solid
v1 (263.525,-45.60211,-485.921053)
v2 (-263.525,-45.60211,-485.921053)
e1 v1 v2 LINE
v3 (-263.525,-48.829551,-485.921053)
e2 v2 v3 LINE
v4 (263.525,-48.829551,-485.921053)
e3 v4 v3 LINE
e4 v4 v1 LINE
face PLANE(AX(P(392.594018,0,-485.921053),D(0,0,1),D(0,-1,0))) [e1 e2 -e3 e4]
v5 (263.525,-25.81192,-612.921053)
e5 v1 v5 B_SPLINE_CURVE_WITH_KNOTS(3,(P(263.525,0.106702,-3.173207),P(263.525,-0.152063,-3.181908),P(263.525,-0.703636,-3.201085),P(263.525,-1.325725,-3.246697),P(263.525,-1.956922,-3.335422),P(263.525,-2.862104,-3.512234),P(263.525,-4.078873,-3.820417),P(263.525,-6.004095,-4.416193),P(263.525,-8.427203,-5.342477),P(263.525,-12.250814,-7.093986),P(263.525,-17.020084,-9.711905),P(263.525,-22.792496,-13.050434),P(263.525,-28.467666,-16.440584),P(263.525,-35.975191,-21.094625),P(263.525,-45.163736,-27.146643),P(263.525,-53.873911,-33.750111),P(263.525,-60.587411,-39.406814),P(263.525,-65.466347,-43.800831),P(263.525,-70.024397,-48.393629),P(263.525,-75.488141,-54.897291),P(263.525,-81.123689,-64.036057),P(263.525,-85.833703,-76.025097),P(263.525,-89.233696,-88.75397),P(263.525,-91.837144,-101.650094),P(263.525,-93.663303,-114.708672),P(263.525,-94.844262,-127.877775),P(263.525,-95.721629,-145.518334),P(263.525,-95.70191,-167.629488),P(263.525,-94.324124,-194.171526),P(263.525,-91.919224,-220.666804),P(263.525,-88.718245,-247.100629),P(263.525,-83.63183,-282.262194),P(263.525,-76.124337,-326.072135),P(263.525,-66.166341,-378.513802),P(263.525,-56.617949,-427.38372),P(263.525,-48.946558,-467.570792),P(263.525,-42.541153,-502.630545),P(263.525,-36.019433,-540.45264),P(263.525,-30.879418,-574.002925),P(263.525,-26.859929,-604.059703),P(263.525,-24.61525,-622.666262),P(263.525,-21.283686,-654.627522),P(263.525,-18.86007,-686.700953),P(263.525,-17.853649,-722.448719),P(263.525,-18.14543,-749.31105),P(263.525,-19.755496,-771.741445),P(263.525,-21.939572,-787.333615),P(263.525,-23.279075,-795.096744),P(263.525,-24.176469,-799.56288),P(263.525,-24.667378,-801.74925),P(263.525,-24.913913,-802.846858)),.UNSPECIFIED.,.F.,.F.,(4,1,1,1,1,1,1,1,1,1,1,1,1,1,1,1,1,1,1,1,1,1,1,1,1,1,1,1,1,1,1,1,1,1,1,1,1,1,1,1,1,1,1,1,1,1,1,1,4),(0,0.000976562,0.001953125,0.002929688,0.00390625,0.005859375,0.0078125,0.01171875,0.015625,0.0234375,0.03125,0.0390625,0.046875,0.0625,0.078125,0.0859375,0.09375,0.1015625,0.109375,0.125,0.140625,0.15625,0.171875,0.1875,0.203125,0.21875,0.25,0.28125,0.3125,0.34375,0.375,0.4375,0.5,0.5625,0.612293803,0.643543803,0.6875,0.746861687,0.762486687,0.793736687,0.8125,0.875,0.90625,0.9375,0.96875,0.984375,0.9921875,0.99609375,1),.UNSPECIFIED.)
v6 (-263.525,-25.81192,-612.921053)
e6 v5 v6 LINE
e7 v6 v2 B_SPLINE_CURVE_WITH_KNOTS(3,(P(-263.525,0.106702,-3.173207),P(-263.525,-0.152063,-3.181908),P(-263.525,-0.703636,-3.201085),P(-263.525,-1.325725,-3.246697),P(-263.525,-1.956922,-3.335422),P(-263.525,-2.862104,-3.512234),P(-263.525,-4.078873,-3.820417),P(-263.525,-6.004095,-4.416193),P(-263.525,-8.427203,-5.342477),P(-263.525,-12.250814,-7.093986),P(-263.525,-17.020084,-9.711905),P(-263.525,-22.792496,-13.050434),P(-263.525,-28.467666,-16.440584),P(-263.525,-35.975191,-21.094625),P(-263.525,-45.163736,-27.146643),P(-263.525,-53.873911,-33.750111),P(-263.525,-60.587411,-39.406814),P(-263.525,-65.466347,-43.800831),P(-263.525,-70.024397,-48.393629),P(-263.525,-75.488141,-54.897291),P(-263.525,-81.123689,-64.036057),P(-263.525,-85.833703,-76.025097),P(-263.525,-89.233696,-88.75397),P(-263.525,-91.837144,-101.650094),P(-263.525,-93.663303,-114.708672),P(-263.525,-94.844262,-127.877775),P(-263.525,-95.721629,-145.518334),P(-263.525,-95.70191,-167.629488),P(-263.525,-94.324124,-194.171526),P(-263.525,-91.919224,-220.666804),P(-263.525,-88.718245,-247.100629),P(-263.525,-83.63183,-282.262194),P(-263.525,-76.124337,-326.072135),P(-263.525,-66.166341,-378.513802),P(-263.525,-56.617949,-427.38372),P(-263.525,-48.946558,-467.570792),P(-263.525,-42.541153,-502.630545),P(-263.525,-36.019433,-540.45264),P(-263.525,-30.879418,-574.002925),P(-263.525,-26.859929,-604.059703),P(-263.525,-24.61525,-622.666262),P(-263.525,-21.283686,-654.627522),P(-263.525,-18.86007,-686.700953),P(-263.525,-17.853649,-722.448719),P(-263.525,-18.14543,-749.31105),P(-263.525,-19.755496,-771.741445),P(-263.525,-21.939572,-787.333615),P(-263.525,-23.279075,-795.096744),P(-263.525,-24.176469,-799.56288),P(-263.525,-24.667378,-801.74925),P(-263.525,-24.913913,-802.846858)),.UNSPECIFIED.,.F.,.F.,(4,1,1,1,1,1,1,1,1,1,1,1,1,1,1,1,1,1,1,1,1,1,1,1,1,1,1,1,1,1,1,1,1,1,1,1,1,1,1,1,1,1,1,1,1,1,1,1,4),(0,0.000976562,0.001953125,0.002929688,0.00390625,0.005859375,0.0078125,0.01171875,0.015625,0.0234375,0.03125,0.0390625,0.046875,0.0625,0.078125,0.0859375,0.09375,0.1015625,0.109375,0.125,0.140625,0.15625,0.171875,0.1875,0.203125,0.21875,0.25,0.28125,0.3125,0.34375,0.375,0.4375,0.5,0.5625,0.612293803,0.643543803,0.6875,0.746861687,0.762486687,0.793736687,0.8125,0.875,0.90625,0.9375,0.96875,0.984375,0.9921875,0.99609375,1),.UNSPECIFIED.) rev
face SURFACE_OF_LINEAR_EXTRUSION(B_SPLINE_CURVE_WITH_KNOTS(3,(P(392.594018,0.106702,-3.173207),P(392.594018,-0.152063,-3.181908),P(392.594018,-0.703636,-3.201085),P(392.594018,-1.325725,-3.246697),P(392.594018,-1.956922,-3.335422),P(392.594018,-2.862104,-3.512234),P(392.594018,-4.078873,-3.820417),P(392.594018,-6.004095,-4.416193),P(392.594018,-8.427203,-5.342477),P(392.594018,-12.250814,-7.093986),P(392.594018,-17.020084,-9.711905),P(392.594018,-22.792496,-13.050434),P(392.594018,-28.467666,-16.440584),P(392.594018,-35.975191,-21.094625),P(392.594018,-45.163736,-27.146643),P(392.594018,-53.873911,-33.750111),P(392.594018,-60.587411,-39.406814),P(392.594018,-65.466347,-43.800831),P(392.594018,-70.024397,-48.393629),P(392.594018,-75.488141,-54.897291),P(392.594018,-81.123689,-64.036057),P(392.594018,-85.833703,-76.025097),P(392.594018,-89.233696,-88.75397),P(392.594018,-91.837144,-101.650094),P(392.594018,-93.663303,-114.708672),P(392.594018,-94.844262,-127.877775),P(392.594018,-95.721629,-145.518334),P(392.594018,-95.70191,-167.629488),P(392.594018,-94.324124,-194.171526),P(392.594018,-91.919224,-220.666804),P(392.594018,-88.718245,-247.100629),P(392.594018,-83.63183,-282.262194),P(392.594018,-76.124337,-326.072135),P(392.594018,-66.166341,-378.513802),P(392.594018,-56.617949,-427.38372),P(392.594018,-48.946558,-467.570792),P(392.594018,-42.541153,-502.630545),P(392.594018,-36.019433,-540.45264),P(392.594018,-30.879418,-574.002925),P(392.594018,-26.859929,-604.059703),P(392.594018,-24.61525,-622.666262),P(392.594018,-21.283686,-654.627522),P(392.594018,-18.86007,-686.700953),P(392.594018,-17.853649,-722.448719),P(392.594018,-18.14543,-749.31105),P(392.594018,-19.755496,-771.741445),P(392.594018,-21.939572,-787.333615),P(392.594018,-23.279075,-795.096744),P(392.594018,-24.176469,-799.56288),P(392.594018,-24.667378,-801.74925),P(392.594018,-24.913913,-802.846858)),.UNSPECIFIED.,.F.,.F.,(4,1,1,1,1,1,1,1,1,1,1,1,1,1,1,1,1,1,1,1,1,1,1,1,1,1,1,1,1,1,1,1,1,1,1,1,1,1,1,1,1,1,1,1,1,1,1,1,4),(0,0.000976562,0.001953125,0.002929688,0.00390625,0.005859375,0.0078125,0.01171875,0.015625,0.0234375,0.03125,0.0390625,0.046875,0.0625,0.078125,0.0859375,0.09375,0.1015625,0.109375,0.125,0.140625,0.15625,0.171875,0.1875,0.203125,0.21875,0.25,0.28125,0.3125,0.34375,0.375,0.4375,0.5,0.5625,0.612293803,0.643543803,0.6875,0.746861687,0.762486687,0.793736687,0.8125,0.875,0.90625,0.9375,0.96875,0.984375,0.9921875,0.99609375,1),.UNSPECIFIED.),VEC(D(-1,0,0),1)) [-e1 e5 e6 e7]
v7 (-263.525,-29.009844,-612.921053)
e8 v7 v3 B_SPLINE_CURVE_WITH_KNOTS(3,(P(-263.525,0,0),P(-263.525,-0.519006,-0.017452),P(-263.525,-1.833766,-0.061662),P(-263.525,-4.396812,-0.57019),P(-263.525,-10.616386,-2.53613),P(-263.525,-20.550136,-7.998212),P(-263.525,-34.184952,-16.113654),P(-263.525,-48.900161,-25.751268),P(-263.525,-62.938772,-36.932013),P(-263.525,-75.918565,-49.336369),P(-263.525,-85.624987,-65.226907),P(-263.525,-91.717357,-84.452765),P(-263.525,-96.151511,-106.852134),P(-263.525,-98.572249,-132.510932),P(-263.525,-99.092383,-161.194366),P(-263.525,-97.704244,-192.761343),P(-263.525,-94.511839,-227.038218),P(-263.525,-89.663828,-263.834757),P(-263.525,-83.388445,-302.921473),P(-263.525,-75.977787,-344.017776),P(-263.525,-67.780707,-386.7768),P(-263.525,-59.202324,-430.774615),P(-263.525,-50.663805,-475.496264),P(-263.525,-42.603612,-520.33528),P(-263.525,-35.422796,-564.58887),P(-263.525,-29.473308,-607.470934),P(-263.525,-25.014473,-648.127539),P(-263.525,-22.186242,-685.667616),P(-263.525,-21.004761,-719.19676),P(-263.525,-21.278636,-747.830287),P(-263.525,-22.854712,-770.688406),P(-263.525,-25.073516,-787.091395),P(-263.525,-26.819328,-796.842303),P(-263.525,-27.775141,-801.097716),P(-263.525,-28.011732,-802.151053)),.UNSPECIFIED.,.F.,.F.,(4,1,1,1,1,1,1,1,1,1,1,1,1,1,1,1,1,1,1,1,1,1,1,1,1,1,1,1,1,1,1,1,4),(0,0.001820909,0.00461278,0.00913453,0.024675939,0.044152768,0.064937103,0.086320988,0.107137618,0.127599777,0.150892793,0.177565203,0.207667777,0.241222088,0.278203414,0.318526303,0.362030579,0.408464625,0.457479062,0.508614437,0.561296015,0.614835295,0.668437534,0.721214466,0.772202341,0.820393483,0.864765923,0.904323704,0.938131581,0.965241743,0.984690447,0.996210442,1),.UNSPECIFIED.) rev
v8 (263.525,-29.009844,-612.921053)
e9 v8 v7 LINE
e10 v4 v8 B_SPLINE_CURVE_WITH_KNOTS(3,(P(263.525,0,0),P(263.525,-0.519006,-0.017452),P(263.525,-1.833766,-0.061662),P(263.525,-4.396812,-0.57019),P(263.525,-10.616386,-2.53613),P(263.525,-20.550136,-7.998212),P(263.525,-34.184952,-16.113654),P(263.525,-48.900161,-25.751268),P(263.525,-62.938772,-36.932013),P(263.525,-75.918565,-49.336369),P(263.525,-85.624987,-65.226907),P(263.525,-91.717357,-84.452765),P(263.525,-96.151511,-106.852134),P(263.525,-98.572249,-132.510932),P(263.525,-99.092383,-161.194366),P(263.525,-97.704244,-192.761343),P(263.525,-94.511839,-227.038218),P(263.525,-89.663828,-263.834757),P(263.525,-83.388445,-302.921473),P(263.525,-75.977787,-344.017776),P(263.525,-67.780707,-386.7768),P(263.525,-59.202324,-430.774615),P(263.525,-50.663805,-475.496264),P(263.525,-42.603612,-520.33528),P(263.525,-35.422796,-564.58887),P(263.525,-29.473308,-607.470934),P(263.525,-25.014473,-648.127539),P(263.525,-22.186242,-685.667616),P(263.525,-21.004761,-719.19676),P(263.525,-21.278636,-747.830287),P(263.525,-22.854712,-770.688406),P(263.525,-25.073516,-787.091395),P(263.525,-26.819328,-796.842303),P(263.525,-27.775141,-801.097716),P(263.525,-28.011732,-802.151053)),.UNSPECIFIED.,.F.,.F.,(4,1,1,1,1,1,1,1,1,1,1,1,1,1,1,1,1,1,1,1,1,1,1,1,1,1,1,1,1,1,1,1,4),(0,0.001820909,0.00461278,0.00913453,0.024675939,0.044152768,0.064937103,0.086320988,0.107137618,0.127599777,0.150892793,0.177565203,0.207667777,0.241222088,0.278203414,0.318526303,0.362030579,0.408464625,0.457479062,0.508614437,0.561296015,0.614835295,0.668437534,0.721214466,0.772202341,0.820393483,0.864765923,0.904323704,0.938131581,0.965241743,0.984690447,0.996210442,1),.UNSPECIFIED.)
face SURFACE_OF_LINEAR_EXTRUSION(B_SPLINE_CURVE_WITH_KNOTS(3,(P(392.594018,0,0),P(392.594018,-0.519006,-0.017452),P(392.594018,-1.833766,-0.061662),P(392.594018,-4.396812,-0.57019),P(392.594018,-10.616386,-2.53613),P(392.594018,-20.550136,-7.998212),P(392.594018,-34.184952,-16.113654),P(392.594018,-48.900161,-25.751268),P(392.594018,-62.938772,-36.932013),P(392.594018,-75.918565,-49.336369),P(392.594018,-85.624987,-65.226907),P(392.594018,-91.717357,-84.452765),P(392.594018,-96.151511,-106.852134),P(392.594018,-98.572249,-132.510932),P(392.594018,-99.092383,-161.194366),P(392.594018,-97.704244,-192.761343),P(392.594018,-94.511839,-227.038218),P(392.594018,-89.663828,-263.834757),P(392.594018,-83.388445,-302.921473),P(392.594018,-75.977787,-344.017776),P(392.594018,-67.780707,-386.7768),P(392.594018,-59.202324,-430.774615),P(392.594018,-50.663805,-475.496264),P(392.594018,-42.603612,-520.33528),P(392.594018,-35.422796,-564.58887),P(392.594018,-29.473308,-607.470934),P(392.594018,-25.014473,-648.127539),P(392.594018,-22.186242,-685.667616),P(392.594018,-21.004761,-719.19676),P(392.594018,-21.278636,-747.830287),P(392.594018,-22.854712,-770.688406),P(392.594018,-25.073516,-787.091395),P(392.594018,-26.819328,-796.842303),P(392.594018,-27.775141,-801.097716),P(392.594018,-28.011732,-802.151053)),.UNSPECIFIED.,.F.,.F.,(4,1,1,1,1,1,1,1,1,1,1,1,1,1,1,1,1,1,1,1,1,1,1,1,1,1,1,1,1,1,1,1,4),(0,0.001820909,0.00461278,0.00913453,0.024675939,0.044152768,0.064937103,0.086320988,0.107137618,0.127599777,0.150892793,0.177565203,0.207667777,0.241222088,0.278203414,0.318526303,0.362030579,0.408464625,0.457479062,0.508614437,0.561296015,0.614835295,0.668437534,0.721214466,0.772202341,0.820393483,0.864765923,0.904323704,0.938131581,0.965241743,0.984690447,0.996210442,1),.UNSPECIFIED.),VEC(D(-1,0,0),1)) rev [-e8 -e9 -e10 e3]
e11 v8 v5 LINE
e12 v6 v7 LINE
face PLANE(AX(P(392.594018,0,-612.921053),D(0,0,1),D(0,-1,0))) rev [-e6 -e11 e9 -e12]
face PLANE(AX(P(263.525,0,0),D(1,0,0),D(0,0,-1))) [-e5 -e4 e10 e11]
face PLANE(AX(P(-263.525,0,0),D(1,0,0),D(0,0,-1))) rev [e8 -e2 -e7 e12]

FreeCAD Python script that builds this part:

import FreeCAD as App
import Part
import Sketcher
from FreeCAD import Vector
Q = App.Units.Quantity

doc = App.newDocument("Part")
body = doc.addObject("PartDesign::Body", "Body")

sketch1 = body.newObject("Sketcher::SketchObject", "Sketch")
sketch1.AttachmentSupport = (doc.getObject("YZ_Plane"), [""])
sketch1.MapMode = "FlatFace"
sketch1.addGeometry(Part.LineSegment(Vector(-45.60211, -485.921053, 0), Vector(-48.829551, -485.921053, 0)), False)
sketch1.addGeometry(Part.BSplineCurve([Vector(-48.829551, -485.921053, 0), Vector(-46.721675, -497.466005, 0), Vector(-42.037524, -523.823946, 0), Vector(-35.422796, -564.58887, 0), Vector(-31.146246, -595.412918, 0), Vector(-29.196049, -611.376026, 0), Vector(-29.009844, -612.921053, 0)], [4, 1, 1, 1, 4], [0.62724109, 0.668437534, 0.721214466, 0.772202341, 0.777664958], False, 3, [1, 1, 1, 1, 1, 1, 1], False), False)
sketch1.addGeometry(Part.LineSegment(Vector(-29.009844, -612.921053, 0), Vector(-25.81192, -612.921053, 0)), False)
sketch1.addGeometry(Part.BSplineCurve([Vector(-45.60211, -485.921053, 0), Vector(-44.802632, -490.303698, 0), Vector(-41.7839, -507.022159, 0), Vector(-36.019433, -540.45264, 0), Vector(-30.879418, -574.002925, 0), Vector(-27.451104, -599.639035, 0), Vector(-26.344535, -608.491793, 0), Vector(-25.81192, -612.921053, 0)], [4, 1, 1, 1, 1, 4], [0.627918803, 0.643543803, 0.6875, 0.746861687, 0.762486687, 0.778111687], False, 3, [1, 1, 1, 1, 1, 1, 1, 1], False), False)
sketch1.addConstraint(Sketcher.Constraint("Block", 1))
sketch1.addConstraint(Sketcher.Constraint("Block", 3))
sketch1.addConstraint(Sketcher.Constraint("Coincident", 0, 2, 1, 1))
sketch1.addConstraint(Sketcher.Constraint("Coincident", 1, 2, 2, 1))
sketch1.addConstraint(Sketcher.Constraint("Coincident", 2, 2, 3, 2))
sketch1.addConstraint(Sketcher.Constraint("Coincident", 3, 1, 0, 1))
pad1 = body.newObject("PartDesign::Pad", "Pad")
pad1.Profile = sketch1
pad1.Type = "TwoLengths"
pad1.Length = Q("10.375 in")
pad1.Length2 = Q("10.375 in")

doc.recompute()
